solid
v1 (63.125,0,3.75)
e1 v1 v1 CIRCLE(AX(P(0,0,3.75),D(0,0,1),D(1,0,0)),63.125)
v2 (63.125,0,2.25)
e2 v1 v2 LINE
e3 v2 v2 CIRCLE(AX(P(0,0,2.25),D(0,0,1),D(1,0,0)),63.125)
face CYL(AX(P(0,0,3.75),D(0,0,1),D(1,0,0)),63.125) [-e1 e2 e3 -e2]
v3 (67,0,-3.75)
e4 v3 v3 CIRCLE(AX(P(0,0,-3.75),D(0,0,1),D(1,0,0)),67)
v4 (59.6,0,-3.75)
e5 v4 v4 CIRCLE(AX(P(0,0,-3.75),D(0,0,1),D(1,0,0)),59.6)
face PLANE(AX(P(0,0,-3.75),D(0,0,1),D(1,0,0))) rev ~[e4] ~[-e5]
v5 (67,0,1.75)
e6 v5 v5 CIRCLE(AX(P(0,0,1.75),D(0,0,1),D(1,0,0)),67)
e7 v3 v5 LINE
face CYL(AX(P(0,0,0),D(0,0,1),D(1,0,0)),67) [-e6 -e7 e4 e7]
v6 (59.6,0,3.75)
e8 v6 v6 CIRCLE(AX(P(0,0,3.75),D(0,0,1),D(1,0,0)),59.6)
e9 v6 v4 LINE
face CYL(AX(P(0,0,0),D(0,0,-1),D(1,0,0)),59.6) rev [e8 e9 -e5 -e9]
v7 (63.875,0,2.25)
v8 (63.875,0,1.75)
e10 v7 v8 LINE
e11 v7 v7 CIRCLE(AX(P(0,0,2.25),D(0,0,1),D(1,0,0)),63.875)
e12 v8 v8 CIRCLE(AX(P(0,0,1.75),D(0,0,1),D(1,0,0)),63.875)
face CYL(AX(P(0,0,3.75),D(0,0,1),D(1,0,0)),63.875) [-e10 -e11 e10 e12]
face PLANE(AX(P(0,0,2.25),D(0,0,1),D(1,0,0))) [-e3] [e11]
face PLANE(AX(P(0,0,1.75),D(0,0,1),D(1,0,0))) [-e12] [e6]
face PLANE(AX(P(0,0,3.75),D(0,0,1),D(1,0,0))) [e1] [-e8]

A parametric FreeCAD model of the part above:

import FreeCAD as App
import Part
import Sketcher
Q = App.Units.Quantity

doc = App.newDocument("Part")
body = doc.addObject("PartDesign::Body", "Body")

sketch1 = doc.addObject("Sketcher::SketchObject", "Sketch")
body.addObject(sketch1)
sketch1.AttachmentSupport = (doc.XY_Plane, [""])
sketch1.MapMode = "FlatFace"
sketch1.addGeometry(Part.Circle(App.Vector(0, 0, 0), App.Vector(0, 0, 1), 67), False)
sketch1.addGeometry(Part.Circle(App.Vector(0, 0, 0), App.Vector(0, 0, 1), 59.6), False)
sketch1.addConstraint(Sketcher.Constraint("Coincident", 0, 3, -1, 1))
sketch1.addConstraint(Sketcher.Constraint("Coincident", 1, 3, -1, 1))
sketch1.addConstraint(Sketcher.Constraint("Diameter", 0, Q("134 mm")))
sketch1.addConstraint(Sketcher.Constraint("Diameter", 1, Q("119.2 mm")))
pad1 = doc.addObject("PartDesign::Pad", "Pad")
body.addObject(pad1)
pad1.Profile = sketch1
pad1.Length = 7.5
pad1.Midplane = True

sketch2 = doc.addObject("Sketcher::SketchObject", "Sketch001")
body.addObject(sketch2)
sketch2.AttachmentSupport = (doc.XY_Plane, [""])
sketch2.MapMode = "FlatFace"
sketch2.AttachmentOffset = App.Placement(App.Vector(0, 0, 3.75), App.Rotation())
sketch2.addGeometry(Part.Circle(App.Vector(0, 0, 0), App.Vector(0, 0, 1), 63.875), False)
sketch2.addGeometry(Part.Circle(App.Vector(0, 0, 0), App.Vector(0, 0, 1), 63.125), False)
sketch2.addConstraint(Sketcher.Constraint("Coincident", 0, 3, -1, 1))
sketch2.addConstraint(Sketcher.Constraint("Coincident", 1, 3, -1, 1))
sketch2.addConstraint(Sketcher.Constraint("Diameter", 0, Q("127.75 mm")))
sketch2.addConstraint(Sketcher.Constraint("Diameter", 1, Q("126.25 mm")))
pocket1 = doc.addObject("PartDesign::Pocket", "Pocket")
body.addObject(pocket1)
pocket1.Profile = sketch2
pocket1.Length = 1.5

sketch3 = doc.addObject("Sketcher::SketchObject", "Sketch002")
body.addObject(sketch3)
sketch3.AttachmentSupport = (doc.XY_Plane, [""])
sketch3.MapMode = "FlatFace"
sketch3.AttachmentOffset = App.Placement(App.Vector(0, 0, 3.75), App.Rotation())
sketch3.addGeometry(Part.Circle(App.Vector(0, 0, 0), App.Vector(0, 0, 1), 67), False)
sketch3.addGeometry(Part.Circle(App.Vector(0, 0, 0), App.Vector(0, 0, 1), 63.875), False)
sketch3.addConstraint(Sketcher.Constraint("Coincident", 0, 3, -1, 1))
sketch3.addConstraint(Sketcher.Constraint("Coincident", 1, 3, -1, 1))
sketch3.addConstraint(Sketcher.Constraint("Diameter", 0, Q("134 mm")))
sketch3.addConstraint(Sketcher.Constraint("Diameter", 1, Q("127.75 mm")))
pocket2 = doc.addObject("PartDesign::Pocket", "Pocket001")
body.addObject(pocket2)
pocket2.Profile = sketch3
pocket2.Length = 2

doc.recompute()
